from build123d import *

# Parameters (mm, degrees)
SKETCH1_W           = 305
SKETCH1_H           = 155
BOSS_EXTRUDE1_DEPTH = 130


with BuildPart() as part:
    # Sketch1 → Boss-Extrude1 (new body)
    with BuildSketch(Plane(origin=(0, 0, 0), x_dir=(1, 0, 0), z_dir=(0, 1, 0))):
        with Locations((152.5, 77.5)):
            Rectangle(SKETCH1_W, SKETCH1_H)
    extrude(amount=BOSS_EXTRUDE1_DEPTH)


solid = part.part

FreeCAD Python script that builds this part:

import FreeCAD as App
import Part
import Sketcher

doc = App.newDocument("Part")
params = doc.addObject("Spreadsheet::Sheet", "Params")
for row, (alias, value) in enumerate([
    ("sketch1_width", "305 mm"),
    ("sketch1_height", "155 mm"),
    ("pad1_length", "130 mm"),
], start=1):
    params.set(f"A{row}", alias)
    params.set(f"B{row}", "=" + value)
    params.setAlias(f"B{row}", alias)

body = doc.addObject("PartDesign::Body", "Body")

# Sketch on XZ plane
sketch1 = body.newObject("Sketcher::SketchObject", "Sketch")
sketch1.AttachmentSupport = (doc.getObject("XZ_Plane"), [""])
sketch1.MapMode = "FlatFace"
sketch1.addGeometry(Part.LineSegment(App.Vector(0, -155, 0), App.Vector(0, 0, 0)), False)
sketch1.addGeometry(Part.LineSegment(App.Vector(0, 0, 0), App.Vector(305, 0, 0)), False)
sketch1.addGeometry(Part.LineSegment(App.Vector(305, 0, 0), App.Vector(305, -155, 0)), False)
sketch1.addGeometry(Part.LineSegment(App.Vector(305, -155, 0), App.Vector(0, -155, 0)), False)
sketch1.addConstraint(Sketcher.Constraint("Coincident", 0, 2, 1, 1))
sketch1.addConstraint(Sketcher.Constraint("Coincident", 1, 2, 2, 1))
sketch1.addConstraint(Sketcher.Constraint("Coincident", 2, 2, 3, 1))
sketch1.addConstraint(Sketcher.Constraint("Coincident", 3, 2, 0, 1))
sketch1.addConstraint(Sketcher.Constraint("Vertical", 0))
sketch1.addConstraint(Sketcher.Constraint("Horizontal", 1))
sketch1.addConstraint(Sketcher.Constraint("Vertical", 2))
sketch1.addConstraint(Sketcher.Constraint("Horizontal", 3))
sketch1.addConstraint(Sketcher.Constraint("Coincident", 0, 2, -1, 1))
sketch1.addConstraint(Sketcher.Constraint("DistanceX", 1, 1, 1, 2, 305.0))
sketch1.addConstraint(Sketcher.Constraint("DistanceY", 0, 1, 0, 2, 155.0))
sketch1.setExpression("Constraints[9]", "Params.sketch1_width")
sketch1.setExpression("Constraints[10]", "Params.sketch1_height")
pad1 = body.newObject("PartDesign::Pad", "Pad")
pad1.Profile = sketch1
pad1.setExpression("Length", "Params.pad1_length")
pad1.Reversed = True

doc.recompute()
